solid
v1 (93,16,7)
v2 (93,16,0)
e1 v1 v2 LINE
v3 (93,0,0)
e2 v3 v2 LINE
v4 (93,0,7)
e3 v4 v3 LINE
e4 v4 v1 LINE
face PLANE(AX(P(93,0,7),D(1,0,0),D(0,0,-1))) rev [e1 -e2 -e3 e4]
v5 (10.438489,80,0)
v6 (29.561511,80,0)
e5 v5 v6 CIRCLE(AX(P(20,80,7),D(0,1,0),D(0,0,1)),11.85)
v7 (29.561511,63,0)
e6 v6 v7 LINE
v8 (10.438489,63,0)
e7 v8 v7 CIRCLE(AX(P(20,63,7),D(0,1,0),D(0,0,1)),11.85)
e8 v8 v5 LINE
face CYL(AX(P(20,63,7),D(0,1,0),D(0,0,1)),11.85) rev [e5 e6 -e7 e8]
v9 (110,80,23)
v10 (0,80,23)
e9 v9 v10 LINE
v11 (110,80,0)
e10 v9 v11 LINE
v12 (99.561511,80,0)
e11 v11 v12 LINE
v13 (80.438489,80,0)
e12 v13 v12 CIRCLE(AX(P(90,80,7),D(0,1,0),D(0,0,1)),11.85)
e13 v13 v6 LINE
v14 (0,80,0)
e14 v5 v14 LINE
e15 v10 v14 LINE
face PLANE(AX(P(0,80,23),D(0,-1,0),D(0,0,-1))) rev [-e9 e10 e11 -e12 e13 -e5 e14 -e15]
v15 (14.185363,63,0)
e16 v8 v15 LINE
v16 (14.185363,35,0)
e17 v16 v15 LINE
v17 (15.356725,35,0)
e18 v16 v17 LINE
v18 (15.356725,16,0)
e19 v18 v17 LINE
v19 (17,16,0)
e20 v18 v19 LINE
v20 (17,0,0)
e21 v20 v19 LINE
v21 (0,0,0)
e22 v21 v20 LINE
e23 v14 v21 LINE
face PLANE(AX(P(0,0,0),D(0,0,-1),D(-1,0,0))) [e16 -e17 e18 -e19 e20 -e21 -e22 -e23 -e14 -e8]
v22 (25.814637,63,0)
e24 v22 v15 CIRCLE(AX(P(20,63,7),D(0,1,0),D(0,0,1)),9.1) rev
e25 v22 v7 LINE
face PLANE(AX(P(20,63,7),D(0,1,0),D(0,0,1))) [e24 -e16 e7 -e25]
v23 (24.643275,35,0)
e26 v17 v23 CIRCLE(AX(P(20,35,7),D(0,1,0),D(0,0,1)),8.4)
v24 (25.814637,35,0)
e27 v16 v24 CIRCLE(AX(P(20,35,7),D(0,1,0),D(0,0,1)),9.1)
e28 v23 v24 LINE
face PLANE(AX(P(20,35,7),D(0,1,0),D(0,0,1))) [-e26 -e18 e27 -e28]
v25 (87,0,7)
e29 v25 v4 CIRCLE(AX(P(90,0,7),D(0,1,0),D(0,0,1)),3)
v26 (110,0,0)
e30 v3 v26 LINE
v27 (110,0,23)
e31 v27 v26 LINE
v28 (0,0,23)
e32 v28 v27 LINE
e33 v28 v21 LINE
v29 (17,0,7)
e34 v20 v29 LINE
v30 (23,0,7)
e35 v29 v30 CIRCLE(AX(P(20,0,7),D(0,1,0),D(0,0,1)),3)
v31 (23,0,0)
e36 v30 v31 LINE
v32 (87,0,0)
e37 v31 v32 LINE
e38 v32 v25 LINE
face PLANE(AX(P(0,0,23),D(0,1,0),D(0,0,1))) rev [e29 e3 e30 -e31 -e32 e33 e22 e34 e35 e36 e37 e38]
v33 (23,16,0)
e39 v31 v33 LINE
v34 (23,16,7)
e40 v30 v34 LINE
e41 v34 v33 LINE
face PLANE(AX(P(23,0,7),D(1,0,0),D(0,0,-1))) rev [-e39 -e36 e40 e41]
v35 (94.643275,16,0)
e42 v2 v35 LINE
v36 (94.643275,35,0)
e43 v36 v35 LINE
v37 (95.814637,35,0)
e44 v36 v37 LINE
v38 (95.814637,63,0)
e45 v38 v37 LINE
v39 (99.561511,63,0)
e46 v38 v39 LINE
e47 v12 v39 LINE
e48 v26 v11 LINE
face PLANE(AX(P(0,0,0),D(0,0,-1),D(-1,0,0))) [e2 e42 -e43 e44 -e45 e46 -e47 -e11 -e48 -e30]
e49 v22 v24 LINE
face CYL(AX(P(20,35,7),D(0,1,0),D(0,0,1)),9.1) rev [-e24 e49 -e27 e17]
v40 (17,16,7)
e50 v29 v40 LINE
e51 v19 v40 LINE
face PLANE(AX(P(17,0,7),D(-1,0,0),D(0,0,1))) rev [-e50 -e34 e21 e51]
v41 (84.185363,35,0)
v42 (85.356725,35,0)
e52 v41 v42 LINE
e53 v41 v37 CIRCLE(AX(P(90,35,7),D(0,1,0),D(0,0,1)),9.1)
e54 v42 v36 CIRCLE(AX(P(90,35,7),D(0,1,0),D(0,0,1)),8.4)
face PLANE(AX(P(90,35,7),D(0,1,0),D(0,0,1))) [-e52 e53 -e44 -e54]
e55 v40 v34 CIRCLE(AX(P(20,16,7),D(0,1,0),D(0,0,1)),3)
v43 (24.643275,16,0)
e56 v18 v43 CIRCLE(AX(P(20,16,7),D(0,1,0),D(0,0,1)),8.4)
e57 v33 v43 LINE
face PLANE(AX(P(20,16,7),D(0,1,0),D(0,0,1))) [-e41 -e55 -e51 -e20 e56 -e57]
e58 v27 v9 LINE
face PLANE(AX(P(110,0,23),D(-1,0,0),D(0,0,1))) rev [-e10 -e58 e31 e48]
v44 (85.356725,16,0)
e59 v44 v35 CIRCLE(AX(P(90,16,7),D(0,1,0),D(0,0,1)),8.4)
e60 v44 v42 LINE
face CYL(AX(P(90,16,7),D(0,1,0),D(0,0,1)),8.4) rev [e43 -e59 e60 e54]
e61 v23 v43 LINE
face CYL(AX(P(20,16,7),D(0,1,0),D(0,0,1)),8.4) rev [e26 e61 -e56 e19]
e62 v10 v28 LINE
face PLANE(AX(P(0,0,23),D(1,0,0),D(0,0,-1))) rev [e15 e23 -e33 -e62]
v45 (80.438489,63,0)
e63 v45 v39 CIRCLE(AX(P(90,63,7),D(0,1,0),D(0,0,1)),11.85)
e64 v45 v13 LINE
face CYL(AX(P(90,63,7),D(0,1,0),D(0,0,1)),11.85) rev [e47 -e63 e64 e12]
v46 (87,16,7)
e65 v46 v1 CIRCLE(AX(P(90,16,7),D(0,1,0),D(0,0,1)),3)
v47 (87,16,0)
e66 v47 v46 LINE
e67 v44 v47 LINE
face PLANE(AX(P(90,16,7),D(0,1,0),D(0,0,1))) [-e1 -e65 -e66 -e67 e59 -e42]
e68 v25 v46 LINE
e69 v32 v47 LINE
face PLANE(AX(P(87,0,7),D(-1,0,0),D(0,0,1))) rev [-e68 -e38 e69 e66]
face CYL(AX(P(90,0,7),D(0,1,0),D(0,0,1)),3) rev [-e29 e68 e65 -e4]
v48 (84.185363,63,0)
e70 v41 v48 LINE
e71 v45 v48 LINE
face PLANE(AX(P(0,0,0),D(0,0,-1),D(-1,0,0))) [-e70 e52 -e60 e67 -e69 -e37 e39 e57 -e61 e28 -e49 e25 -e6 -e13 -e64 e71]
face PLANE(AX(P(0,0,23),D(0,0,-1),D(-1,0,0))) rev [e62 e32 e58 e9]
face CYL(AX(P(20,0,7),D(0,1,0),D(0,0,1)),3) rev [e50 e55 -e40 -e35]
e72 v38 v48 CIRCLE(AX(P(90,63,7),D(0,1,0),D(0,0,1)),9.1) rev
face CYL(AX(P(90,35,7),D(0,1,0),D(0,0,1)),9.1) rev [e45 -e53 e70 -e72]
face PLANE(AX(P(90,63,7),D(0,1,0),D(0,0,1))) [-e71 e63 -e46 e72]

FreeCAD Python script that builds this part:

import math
import FreeCAD as App
import Part
import Sketcher


def add_polygon(sketch, points):
    """Adds a closed chain of lines whose ends are joined by coincident constraints."""
    first, n = sketch.GeometryCount, len(points)
    for a, b in zip(points, points[1:] + points[:1]):
        sketch.addGeometry(Part.LineSegment(App.Vector(*a, 0), App.Vector(*b, 0)), False)
    for i in range(n):
        sketch.addConstraint(Sketcher.Constraint("Coincident", first + i, 2, first + (i + 1) % n, 1))

doc = App.newDocument("Part")
body = doc.addObject("PartDesign::Body", "Body")

# Sketch on XY plane
sketch1 = doc.addObject("Sketcher::SketchObject", "Sketch")
body.addObject(sketch1)
sketch1.AttachmentSupport = (doc.XY_Plane, [""])
sketch1.MapMode = "FlatFace"
add_polygon(sketch1, [(0, 80), (0, 0), (110, 0), (110, 80)])  # lines 0-3
sketch1.addConstraint([
    Sketcher.Constraint("Vertical", 0),
    Sketcher.Constraint("Horizontal", 1),
    Sketcher.Constraint("Vertical", 2),
    Sketcher.Constraint("Horizontal", 3),
    Sketcher.Constraint("Coincident", 0, 2, -1, 1),
    Sketcher.Constraint("DistanceX", 1, 1, 1, 2, 110.0),
    Sketcher.Constraint("DistanceY", 0, 2, 0, 1, 80.0),
])
pad1 = doc.addObject("PartDesign::Pad", "Pad")
body.addObject(pad1)
pad1.Profile = sketch1
pad1.Length = 23

# Sketch on XZ plane
sketch2 = doc.addObject("Sketcher::SketchObject", "Sketch001")
body.addObject(sketch2)
sketch2.AttachmentSupport = (doc.XZ_Plane, [""])
sketch2.MapMode = "FlatFace"
sketch2.AttachmentOffset = App.Placement(App.Vector(0, 0, -80), App.Rotation())
sketch2.addGeometry([
    Part.Circle(App.Vector(20, 7, 0), App.Vector(0, 0, 1), 9),
    Part.Circle(App.Vector(90, 7, 0), App.Vector(0, 0, 1), 9),
], False)
sketch2.addConstraint([
    Sketcher.Constraint("Equal", 0, 1),
    Sketcher.Constraint("Horizontal", 0, 3, 1, 3),
    Sketcher.Constraint("Diameter", 0, 18.2),
    Sketcher.Constraint("DistanceX", -1, 1, 0, 3, 20.0),
    Sketcher.Constraint("DistanceY", -1, 1, 0, 3, 7.0),
    Sketcher.Constraint("DistanceX", -1, 1, 1, 3, 90.0),
])
pocket1 = doc.addObject("PartDesign::Pocket", "Pocket")
body.addObject(pocket1)
pocket1.Profile = sketch2
pocket1.Length = 45
pocket1.Reversed = True

# Sketch on XZ plane
sketch3 = doc.addObject("Sketcher::SketchObject", "Sketch002")
body.addObject(sketch3)
sketch3.AttachmentSupport = (doc.XZ_Plane, [""])
sketch3.MapMode = "FlatFace"
sketch3.AttachmentOffset = App.Placement(App.Vector(0, 0, -80), App.Rotation())
sketch3.addGeometry([
    Part.Circle(App.Vector(20, 7, 0), App.Vector(0, 0, 1), 12),
    Part.Circle(App.Vector(90, 7, 0), App.Vector(0, 0, 1), 12),
], False)
sketch3.addConstraint([
    Sketcher.Constraint("Equal", 0, 1),
    Sketcher.Constraint("Horizontal", 0, 3, 1, 3),
    Sketcher.Constraint("Diameter", 0, 23.7),
    Sketcher.Constraint("DistanceX", -1, 1, 0, 3, 20.0),
    Sketcher.Constraint("DistanceY", -1, 1, 0, 3, 7.0),
    Sketcher.Constraint("DistanceX", -1, 1, 1, 3, 90.0),
])
pocket2 = doc.addObject("PartDesign::Pocket", "Pocket001")
body.addObject(pocket2)
pocket2.Profile = sketch3
pocket2.Length = 17
pocket2.Reversed = True

# Sketch on XZ plane
sketch4 = doc.addObject("Sketcher::SketchObject", "Sketch003")
body.addObject(sketch4)
sketch4.AttachmentSupport = (doc.XZ_Plane, [""])
sketch4.MapMode = "FlatFace"
sketch4.AttachmentOffset = App.Placement(App.Vector(0, 0, -80), App.Rotation())
sketch4.addGeometry([
    Part.Circle(App.Vector(20, 7, 0), App.Vector(0, 0, 1), 8),
    Part.Circle(App.Vector(90, 7, 0), App.Vector(0, 0, 1), 8),
], False)
sketch4.addConstraint([
    Sketcher.Constraint("Equal", 0, 1),
    Sketcher.Constraint("Horizontal", 0, 3, 1, 3),
    Sketcher.Constraint("Diameter", 0, 16.8),
    Sketcher.Constraint("DistanceX", -1, 1, 0, 3, 20.0),
    Sketcher.Constraint("DistanceY", -1, 1, 0, 3, 7.0),
    Sketcher.Constraint("DistanceX", -1, 1, 1, 3, 90.0),
])
pocket3 = doc.addObject("PartDesign::Pocket", "Pocket002")
body.addObject(pocket3)
pocket3.Profile = sketch4
pocket3.Length = 64
pocket3.Reversed = True

# Sketch on XZ plane
sketch5 = doc.addObject("Sketcher::SketchObject", "Sketch004")
body.addObject(sketch5)
sketch5.AttachmentSupport = (doc.XZ_Plane, [""])
sketch5.MapMode = "FlatFace"
sketch5.AttachmentOffset = App.Placement(App.Vector(0, 0, -80), App.Rotation())
sketch5.addGeometry([
    Part.LineSegment(App.Vector(17, 0, 0), App.Vector(17, 7, 0)),  # 0
    Part.ArcOfCircle(Part.Circle(App.Vector(20, 7, 0), App.Vector(0, 0, 1), 3), math.radians(0), math.radians(180)),  # 1
    Part.LineSegment(App.Vector(23, 7, 0), App.Vector(23, 0, 0)),  # 2
    Part.LineSegment(App.Vector(23, 0, 0), App.Vector(17, 0, 0)),  # 3
    Part.LineSegment(App.Vector(87, 0, 0), App.Vector(87, 7, 0)),  # 4
    Part.ArcOfCircle(Part.Circle(App.Vector(90, 7, 0), App.Vector(0, 0, 1), 3), math.radians(0), math.radians(180)),  # 5
    Part.LineSegment(App.Vector(93, 7, 0), App.Vector(93, 0, 0)),  # 6
    Part.LineSegment(App.Vector(93, 0, 0), App.Vector(87, 0, 0)),  # 7
], False)
sketch5.addConstraint([
    Sketcher.Constraint("Tangent", 0, 2, 1, 2),
    Sketcher.Constraint("Tangent", 1, 1, 2, 1),
    Sketcher.Constraint("Coincident", 2, 2, 3, 1),
    Sketcher.Constraint("Coincident", 3, 2, 0, 1),
    Sketcher.Constraint("Tangent", 4, 2, 5, 2),
    Sketcher.Constraint("Tangent", 5, 1, 6, 1),
    Sketcher.Constraint("Coincident", 6, 2, 7, 1),
    Sketcher.Constraint("Coincident", 7, 2, 4, 1),
    Sketcher.Constraint("Vertical", 0),
    Sketcher.Constraint("Vertical", 2),
    Sketcher.Constraint("Horizontal", 3),
    Sketcher.Constraint("Vertical", 4),
    Sketcher.Constraint("Vertical", 6),
    Sketcher.Constraint("Horizontal", 7),
    Sketcher.Constraint("Equal", 1, 5),
    Sketcher.Constraint("PointOnObject", 2, 2, -1),
    Sketcher.Constraint("PointOnObject", 6, 2, -1),
    Sketcher.Constraint("Horizontal", 1, 3, 5, 3),
    Sketcher.Constraint("Radius", 1, 3.0),
    Sketcher.Constraint("DistanceY", 0, 1, 0, 2, 7.0),
    Sketcher.Constraint("DistanceX", -1, 1, 1, 3, 20.0),
    Sketcher.Constraint("DistanceX", -1, 1, 5, 3, 90.0),
])
pocket4 = doc.addObject("PartDesign::Pocket", "Pocket003")
body.addObject(pocket4)
pocket4.Profile = sketch5
pocket4.Type = "ThroughAll"
pocket4.Reversed = True

doc.recompute()
